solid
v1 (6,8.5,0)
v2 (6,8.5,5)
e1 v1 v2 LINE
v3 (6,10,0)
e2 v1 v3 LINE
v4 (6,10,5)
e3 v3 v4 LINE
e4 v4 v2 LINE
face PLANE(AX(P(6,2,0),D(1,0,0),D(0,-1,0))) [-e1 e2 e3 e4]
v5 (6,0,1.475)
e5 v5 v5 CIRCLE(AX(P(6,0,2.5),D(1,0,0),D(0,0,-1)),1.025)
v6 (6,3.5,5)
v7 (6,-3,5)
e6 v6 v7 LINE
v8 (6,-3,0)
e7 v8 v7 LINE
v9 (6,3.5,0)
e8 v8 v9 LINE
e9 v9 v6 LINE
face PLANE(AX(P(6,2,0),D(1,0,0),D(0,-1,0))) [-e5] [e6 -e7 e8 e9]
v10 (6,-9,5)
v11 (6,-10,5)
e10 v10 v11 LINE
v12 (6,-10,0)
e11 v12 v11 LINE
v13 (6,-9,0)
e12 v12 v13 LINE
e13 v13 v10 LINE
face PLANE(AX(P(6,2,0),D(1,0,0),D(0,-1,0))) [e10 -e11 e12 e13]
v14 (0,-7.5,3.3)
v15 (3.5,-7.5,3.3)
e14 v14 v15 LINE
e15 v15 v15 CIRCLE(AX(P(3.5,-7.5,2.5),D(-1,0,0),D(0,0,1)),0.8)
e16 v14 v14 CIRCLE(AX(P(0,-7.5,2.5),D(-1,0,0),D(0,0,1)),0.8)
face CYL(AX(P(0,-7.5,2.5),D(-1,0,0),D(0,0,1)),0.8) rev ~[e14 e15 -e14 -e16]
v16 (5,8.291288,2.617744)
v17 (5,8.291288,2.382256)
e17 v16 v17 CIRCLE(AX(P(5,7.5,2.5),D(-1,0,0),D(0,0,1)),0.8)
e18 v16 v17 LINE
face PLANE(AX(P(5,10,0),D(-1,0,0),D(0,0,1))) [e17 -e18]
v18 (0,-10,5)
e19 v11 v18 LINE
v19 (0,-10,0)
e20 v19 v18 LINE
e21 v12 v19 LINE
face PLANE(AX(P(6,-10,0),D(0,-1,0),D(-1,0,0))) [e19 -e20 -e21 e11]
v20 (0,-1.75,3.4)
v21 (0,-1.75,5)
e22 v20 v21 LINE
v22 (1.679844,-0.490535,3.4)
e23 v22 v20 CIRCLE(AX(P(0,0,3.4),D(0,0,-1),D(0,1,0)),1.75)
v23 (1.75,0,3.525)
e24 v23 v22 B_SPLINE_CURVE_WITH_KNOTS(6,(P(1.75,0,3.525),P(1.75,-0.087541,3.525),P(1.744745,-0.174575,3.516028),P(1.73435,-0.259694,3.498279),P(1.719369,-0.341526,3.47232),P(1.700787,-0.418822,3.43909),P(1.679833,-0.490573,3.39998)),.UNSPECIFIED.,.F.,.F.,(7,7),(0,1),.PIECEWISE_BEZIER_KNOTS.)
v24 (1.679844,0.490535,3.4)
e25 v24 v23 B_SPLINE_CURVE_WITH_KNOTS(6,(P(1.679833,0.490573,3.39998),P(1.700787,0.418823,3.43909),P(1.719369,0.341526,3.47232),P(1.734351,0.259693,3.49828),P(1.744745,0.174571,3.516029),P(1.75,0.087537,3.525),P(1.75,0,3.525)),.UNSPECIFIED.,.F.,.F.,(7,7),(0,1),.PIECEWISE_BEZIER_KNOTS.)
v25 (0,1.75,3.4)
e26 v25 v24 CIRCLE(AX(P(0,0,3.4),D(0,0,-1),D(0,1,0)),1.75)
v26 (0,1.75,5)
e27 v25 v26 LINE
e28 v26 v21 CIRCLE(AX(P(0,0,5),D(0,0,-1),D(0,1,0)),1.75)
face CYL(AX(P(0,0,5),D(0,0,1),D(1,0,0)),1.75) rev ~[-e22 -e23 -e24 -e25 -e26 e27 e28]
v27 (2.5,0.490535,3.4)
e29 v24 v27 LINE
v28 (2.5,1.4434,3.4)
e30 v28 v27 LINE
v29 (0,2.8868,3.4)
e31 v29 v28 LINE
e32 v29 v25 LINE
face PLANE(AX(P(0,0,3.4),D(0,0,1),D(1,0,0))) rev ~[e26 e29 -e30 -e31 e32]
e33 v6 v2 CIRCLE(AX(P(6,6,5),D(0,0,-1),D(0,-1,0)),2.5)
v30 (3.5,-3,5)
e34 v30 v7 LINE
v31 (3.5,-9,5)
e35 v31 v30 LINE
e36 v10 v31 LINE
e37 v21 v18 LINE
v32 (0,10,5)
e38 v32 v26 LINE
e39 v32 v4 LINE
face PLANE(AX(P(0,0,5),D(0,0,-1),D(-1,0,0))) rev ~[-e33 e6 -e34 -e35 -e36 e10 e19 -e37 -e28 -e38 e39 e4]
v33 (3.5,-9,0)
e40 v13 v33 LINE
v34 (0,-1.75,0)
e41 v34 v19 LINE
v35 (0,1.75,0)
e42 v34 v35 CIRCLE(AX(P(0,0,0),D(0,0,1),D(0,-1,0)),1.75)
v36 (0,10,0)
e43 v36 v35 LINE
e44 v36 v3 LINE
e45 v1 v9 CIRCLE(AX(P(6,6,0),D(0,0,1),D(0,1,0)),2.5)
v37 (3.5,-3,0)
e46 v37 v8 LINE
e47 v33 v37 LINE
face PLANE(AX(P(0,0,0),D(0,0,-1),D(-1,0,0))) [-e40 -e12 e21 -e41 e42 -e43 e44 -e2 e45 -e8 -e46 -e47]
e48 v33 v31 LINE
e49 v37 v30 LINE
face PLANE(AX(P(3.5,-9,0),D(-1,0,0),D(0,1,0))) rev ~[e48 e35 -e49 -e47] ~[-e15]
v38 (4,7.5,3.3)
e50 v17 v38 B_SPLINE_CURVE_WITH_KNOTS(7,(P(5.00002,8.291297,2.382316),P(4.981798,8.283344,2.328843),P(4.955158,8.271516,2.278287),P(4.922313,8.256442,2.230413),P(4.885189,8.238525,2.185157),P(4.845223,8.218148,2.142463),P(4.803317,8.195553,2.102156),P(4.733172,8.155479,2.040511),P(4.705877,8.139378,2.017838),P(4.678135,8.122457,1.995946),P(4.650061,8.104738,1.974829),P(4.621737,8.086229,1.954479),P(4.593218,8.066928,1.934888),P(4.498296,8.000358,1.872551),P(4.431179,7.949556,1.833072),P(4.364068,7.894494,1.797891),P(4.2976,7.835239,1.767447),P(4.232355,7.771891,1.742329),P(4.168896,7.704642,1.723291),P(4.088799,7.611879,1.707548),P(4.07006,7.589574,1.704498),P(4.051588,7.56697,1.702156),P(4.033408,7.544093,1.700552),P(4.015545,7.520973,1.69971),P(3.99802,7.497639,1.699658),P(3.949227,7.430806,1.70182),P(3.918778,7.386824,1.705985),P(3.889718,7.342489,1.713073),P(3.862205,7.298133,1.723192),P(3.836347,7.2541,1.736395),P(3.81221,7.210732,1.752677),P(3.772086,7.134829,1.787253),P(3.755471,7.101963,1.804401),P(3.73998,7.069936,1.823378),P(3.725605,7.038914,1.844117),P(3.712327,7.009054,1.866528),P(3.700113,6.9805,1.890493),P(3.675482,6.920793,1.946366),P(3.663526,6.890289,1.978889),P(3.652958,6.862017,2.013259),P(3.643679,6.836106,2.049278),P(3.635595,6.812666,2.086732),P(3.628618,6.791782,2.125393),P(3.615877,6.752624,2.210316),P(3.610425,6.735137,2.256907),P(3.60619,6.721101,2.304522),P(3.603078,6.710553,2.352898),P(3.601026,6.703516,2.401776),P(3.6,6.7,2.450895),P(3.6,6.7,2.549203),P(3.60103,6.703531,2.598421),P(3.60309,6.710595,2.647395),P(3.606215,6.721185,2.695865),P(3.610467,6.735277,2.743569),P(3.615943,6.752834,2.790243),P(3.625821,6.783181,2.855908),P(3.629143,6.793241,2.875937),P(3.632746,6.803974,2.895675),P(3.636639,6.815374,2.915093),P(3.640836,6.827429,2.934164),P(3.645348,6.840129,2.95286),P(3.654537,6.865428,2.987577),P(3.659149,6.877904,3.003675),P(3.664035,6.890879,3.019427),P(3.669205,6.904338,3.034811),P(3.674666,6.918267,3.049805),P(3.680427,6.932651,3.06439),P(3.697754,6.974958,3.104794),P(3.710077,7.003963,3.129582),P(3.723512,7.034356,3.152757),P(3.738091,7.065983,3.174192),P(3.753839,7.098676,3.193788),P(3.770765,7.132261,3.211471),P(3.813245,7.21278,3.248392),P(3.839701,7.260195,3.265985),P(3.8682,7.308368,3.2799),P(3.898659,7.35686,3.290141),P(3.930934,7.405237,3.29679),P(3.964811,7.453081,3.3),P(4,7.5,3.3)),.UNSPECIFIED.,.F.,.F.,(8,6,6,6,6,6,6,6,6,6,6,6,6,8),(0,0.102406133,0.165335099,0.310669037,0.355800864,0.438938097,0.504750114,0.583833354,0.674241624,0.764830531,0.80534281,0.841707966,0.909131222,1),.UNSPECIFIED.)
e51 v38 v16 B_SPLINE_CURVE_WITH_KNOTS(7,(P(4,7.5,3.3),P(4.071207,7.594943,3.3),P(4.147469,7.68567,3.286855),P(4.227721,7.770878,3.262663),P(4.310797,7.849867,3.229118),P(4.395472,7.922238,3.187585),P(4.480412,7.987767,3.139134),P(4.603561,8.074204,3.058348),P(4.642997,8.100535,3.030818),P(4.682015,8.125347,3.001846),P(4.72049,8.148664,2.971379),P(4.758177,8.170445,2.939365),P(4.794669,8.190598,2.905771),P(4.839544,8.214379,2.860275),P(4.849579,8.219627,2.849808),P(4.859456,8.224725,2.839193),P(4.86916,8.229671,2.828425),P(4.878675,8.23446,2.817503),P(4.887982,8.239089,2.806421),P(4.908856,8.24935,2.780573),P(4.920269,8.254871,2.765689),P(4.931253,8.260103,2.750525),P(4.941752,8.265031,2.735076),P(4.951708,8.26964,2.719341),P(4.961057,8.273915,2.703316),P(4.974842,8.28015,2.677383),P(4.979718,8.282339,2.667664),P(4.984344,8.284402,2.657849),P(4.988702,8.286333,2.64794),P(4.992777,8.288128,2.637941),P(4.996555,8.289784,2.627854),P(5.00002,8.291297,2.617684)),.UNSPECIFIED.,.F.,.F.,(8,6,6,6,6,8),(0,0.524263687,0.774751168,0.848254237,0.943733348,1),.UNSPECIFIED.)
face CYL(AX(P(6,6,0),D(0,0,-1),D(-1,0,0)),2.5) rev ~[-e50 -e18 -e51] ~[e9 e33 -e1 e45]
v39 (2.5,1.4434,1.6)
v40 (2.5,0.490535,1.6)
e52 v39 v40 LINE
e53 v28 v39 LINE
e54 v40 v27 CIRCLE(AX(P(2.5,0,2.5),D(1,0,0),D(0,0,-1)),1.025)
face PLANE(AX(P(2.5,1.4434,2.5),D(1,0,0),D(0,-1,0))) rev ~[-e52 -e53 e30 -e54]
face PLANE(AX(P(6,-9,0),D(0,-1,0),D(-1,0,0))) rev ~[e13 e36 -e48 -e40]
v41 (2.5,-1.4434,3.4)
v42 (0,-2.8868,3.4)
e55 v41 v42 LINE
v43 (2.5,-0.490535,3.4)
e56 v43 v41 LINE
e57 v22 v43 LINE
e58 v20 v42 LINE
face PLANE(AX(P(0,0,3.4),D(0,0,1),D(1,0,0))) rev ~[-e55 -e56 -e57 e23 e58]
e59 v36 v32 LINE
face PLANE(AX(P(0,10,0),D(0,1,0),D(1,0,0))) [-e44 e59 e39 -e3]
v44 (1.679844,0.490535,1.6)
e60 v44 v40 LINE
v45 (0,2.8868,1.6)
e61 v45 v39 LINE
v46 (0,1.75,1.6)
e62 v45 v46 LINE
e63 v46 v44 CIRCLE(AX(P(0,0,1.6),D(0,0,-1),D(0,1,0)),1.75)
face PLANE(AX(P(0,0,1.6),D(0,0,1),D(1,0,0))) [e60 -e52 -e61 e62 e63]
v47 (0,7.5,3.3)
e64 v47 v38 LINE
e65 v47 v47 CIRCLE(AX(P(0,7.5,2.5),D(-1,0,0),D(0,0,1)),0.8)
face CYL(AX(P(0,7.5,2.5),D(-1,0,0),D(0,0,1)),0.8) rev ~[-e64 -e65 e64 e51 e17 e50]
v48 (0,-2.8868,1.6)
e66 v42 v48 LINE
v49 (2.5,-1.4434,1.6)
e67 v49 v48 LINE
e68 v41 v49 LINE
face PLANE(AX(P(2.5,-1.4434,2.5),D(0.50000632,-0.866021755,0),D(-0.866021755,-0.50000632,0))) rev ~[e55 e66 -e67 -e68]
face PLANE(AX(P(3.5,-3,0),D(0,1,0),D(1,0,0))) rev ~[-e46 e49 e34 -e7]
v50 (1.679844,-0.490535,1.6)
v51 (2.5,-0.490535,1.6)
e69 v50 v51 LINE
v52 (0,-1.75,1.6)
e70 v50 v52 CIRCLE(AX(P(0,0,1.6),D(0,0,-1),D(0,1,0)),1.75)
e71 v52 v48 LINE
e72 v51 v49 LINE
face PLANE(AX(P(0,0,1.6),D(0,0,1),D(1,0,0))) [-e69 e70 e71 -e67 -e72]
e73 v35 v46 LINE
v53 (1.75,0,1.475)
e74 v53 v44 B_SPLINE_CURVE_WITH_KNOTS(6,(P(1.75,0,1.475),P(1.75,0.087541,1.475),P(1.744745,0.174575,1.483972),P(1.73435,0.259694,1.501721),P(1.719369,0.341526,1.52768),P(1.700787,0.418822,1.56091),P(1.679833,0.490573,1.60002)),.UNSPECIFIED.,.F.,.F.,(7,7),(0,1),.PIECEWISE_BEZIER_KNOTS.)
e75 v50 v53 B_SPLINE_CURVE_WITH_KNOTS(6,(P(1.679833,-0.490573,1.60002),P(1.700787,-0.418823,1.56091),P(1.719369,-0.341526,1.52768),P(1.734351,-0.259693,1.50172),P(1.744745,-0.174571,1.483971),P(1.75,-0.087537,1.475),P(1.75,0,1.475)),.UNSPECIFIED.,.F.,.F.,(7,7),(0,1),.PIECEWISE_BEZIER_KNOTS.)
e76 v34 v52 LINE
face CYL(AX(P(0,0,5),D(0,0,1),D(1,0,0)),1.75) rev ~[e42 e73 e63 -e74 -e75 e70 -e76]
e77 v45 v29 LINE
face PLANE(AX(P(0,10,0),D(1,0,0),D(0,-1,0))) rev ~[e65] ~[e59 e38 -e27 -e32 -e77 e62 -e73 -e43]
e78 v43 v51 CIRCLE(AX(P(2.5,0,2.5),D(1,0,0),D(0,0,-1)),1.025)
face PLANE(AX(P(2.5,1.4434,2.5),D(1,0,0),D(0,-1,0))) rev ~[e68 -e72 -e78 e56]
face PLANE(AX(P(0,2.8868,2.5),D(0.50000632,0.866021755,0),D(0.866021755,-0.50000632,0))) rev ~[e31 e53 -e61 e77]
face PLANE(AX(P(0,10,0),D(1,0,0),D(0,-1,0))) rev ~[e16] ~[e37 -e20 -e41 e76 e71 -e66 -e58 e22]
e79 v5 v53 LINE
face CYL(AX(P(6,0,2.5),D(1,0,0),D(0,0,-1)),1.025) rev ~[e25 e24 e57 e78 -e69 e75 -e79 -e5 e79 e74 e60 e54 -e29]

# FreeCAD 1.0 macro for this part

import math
import FreeCAD as App
import Part
import Sketcher
from FreeCAD import Vector
Q = App.Units.Quantity


def add_polygon(sketch, points):
    """Adds a closed chain of lines whose ends are joined by coincident constraints."""
    first, n = sketch.GeometryCount, len(points)
    for a, b in zip(points, points[1:] + points[:1]):
        sketch.addGeometry(Part.LineSegment(App.Vector(*a, 0), App.Vector(*b, 0)), False)
    for i in range(n):
        sketch.addConstraint(Sketcher.Constraint("Coincident", first + i, 2, first + (i + 1) % n, 1))

doc = App.newDocument("Part")
body = doc.addObject("PartDesign::Body", "Body")

sketch1 = doc.addObject("Sketcher::SketchObject", "Sketch")
body.addObject(sketch1)
sketch1.AttachmentSupport = (doc.XY_Plane, [""])
sketch1.MapMode = "FlatFace"
add_polygon(sketch1, [(0, -10), (6, -10), (6, -2), (4, -2), (4, 2), (6, 2), (6, 10), (0, 10)])
sketch1.addConstraint(Sketcher.Constraint("Horizontal", 0))
sketch1.addConstraint(Sketcher.Constraint("Vertical", 1))
sketch1.addConstraint(Sketcher.Constraint("Horizontal", 2))
sketch1.addConstraint(Sketcher.Constraint("Vertical", 3))
sketch1.addConstraint(Sketcher.Constraint("Horizontal", 4))
sketch1.addConstraint(Sketcher.Constraint("Vertical", 5))
sketch1.addConstraint(Sketcher.Constraint("Horizontal", 6))
sketch1.addConstraint(Sketcher.Constraint("Vertical", 7))
sketch1.addConstraint(Sketcher.Constraint("Symmetric", 6, 2, 7, 2, -1, 1))
sketch1.addConstraint(Sketcher.Constraint("Symmetric", 1, 2, 4, 2, -1))
sketch1.addConstraint(Sketcher.Constraint("DistanceX", 0, 1, 0, 2, Q("6 mm")))
sketch1.addConstraint(Sketcher.Constraint("DistanceX", 2, 2, 2, 1, Q("2 mm")))
sketch1.addConstraint(Sketcher.Constraint("DistanceY", 3, 1, 3, 2, Q("4 mm")))
sketch1.addConstraint(Sketcher.Constraint("DistanceY", 7, 2, 7, 1, Q("20 mm")))
pad1 = doc.addObject("PartDesign::Pad", "Pad")
body.addObject(pad1)
pad1.Profile = sketch1
pad1.Length = 5

sketch2 = doc.addObject("Sketcher::SketchObject", "Sketch001")
body.addObject(sketch2)
sketch2.AttachmentSupport = (doc.XY_Plane, [""])
sketch2.MapMode = "FlatFace"
sketch2.AttachmentOffset = App.Placement(Vector(0, 0, 2.5), App.Rotation())
add_polygon(sketch2, [(2.5, 1.4434), (0, 2.8868), (-2.5, 1.4434), (-2.5, -1.4434), (0, -2.8868), (2.5, -1.4434)])
sketch2.addConstraint(Sketcher.Constraint("Vertical", 2))
sketch2.addConstraint(Sketcher.Constraint("Vertical", 5))
sketch2.addConstraint(Sketcher.Constraint("Symmetric", 0, 2, 3, 2, -1, 1))
sketch2.addConstraint(Sketcher.Constraint("Symmetric", 1, 2, 4, 2, -1, 1))
sketch2.addConstraint(Sketcher.Constraint("PointOnObject", 0, 2, -2))
sketch2.addConstraint(Sketcher.Constraint("Parallel", 0, 3))
sketch2.addConstraint(Sketcher.Constraint("Horizontal", 2, 2, 4, 2))
sketch2.addConstraint(Sketcher.Constraint("DistanceX", 2, 2, 4, 2, Q("5 mm")))
sketch2.addConstraint(Sketcher.Constraint("Angle", 0, Q("149.9996 deg")))
sketch2.addConstraint(Sketcher.Constraint("DistanceY", 2, 2, 2, 1, Q("2.8868 mm")))
pocket1 = doc.addObject("PartDesign::Pocket", "Pocket")
body.addObject(pocket1)
pocket1.Profile = sketch2
pocket1.Length = 1.8
pocket1.Midplane = True

sketch3 = doc.addObject("Sketcher::SketchObject", "Sketch002")
body.addObject(sketch3)
sketch3.AttachmentSupport = (doc.XY_Plane, [""])
sketch3.MapMode = "FlatFace"
sketch3.AttachmentOffset = App.Placement(Vector(0, 0, 5), App.Rotation())
sketch3.addGeometry(Part.Circle(Vector(0, 0, 0), Vector(0, 0, 1), 1.75), False)
sketch3.addConstraint(Sketcher.Constraint("Coincident", 0, 3, -1, 1))
sketch3.addConstraint(Sketcher.Constraint("Diameter", 0, Q("3.5 mm")))
pocket2 = doc.addObject("PartDesign::Pocket", "Pocket001")
body.addObject(pocket2)
pocket2.Profile = sketch3
pocket2.Length = 8

sketch4 = doc.addObject("Sketcher::SketchObject", "Sketch003")
body.addObject(sketch4)
sketch4.AttachmentSupport = (doc.YZ_Plane, [""])
sketch4.MapMode = "FlatFace"
sketch4.addGeometry(Part.Circle(Vector(7.5, 2.5, 0), Vector(0, 0, 1), 0.8), False)
sketch4.addGeometry(Part.Circle(Vector(-7.5, 2.5, 0), Vector(0, 0, 1), 0.8), False)
sketch4.addConstraint(Sketcher.Constraint("Equal", 0, 1))
sketch4.addConstraint(Sketcher.Constraint("Symmetric", 0, 3, 1, 3, -2))
sketch4.addConstraint(Sketcher.Constraint("Diameter", 0, Q("1.6 mm")))
sketch4.addConstraint(Sketcher.Constraint("DistanceY", -1, 1, 0, 3, Q("2.5 mm")))
sketch4.addConstraint(Sketcher.Constraint("DistanceX", 1, 3, 0, 3, Q("15 mm")))
pocket3 = doc.addObject("PartDesign::Pocket", "Pocket002")
body.addObject(pocket3)
pocket3.Profile = sketch4
pocket3.Length = 5
pocket3.Reversed = True

sketch5 = doc.addObject("Sketcher::SketchObject", "Sketch004")
body.addObject(sketch5)
sketch5.AttachmentSupport = (doc.XY_Plane, [""])
sketch5.MapMode = "FlatFace"
add_polygon(sketch5, [(6, -2), (4, -2), (4, 2), (6, 2)])
sketch5.addConstraint(Sketcher.Constraint("Horizontal", 0))
sketch5.addConstraint(Sketcher.Constraint("Vertical", 1))
sketch5.addConstraint(Sketcher.Constraint("Horizontal", 2))
sketch5.addConstraint(Sketcher.Constraint("Vertical", 3))
sketch5.addConstraint(Sketcher.Constraint("DistanceX", 0, 2, 0, 1, Q("2 mm")))
sketch5.addConstraint(Sketcher.Constraint("DistanceY", 1, 1, 1, 2, Q("4 mm")))
sketch5.addConstraint(Sketcher.Constraint("DistanceX", -1, 1, 0, 2, Q("4 mm")))
sketch5.addConstraint(Sketcher.Constraint("DistanceY", 0, 2, -1, 1, Q("2 mm")))
pad2 = doc.addObject("PartDesign::Pad", "Pad001")
body.addObject(pad2)
pad2.Profile = sketch5
pad2.Length = 5

sketch6 = doc.addObject("Sketcher::SketchObject", "Sketch005")
body.addObject(sketch6)
sketch6.AttachmentSupport = (doc.XY_Plane, [""])
sketch6.MapMode = "FlatFace"
sketch6.addGeometry(Part.LineSegment(Vector(6, 8.5, 0), Vector(6, 3.5, 0)), False)
sketch6.addGeometry(Part.ArcOfCircle(Part.Circle(Vector(6, 6, 0), Vector(0, 0, 1), 2.5), math.radians(90), math.radians(270)), False)
add_polygon(sketch6, [(6, -3), (6, -9), (3.5, -9), (3.5, -3)])
sketch6.addConstraint(Sketcher.Constraint("Coincident", 0, 1, 1, 1))
sketch6.addConstraint(Sketcher.Constraint("Coincident", 1, 2, 0, 2))
sketch6.addConstraint(Sketcher.Constraint("Vertical", 0))
sketch6.addConstraint(Sketcher.Constraint("Vertical", 2))
sketch6.addConstraint(Sketcher.Constraint("Horizontal", 3))
sketch6.addConstraint(Sketcher.Constraint("Vertical", 4))
sketch6.addConstraint(Sketcher.Constraint("Horizontal", 5))
sketch6.addConstraint(Sketcher.Constraint("Vertical", 1, 3, 0, 1))
sketch6.addConstraint(Sketcher.Constraint("Vertical", 1, 2, 2, 2))
sketch6.addConstraint(Sketcher.Constraint("Radius", 1, Q("2.5 mm")))
sketch6.addConstraint(Sketcher.Constraint("DistanceY", 2, 2, 2, 1, Q("6 mm")))
sketch6.addConstraint(Sketcher.Constraint("DistanceX", 3, 2, 3, 1, Q("2.5 mm")))
sketch6.addConstraint(Sketcher.Constraint("DistanceX", -1, 1, 1, 3, Q("6 mm")))
sketch6.addConstraint(Sketcher.Constraint("DistanceY", -1, 1, 1, 3, Q("6 mm")))
sketch6.addConstraint(Sketcher.Constraint("DistanceY", 2, 2, -1, 1, Q("9 mm")))
pocket4 = doc.addObject("PartDesign::Pocket", "Pocket003")
body.addObject(pocket4)
pocket4.Profile = sketch6
pocket4.Length = 5
pocket4.Reversed = True

sketch7 = doc.addObject("Sketcher::SketchObject", "Sketch006")
body.addObject(sketch7)
sketch7.AttachmentSupport = (doc.YZ_Plane, [""])
sketch7.MapMode = "FlatFace"
sketch7.AttachmentOffset = App.Placement(Vector(0, 0, 6), App.Rotation())
sketch7.addGeometry(Part.Circle(Vector(0, 2.5, 0), Vector(0, 0, 1), 1.025), False)
sketch7.addConstraint(Sketcher.Constraint("PointOnObject", 0, 3, -2))
sketch7.addConstraint(Sketcher.Constraint("Diameter", 0, Q("2.05 mm")))
sketch7.addConstraint(Sketcher.Constraint("DistanceY", -1, 1, 0, 3, Q("2.5 mm")))
pocket5 = doc.addObject("PartDesign::Pocket", "Pocket004")
body.addObject(pocket5)
pocket5.Profile = sketch7
pocket5.Length = 12

doc.recompute()
